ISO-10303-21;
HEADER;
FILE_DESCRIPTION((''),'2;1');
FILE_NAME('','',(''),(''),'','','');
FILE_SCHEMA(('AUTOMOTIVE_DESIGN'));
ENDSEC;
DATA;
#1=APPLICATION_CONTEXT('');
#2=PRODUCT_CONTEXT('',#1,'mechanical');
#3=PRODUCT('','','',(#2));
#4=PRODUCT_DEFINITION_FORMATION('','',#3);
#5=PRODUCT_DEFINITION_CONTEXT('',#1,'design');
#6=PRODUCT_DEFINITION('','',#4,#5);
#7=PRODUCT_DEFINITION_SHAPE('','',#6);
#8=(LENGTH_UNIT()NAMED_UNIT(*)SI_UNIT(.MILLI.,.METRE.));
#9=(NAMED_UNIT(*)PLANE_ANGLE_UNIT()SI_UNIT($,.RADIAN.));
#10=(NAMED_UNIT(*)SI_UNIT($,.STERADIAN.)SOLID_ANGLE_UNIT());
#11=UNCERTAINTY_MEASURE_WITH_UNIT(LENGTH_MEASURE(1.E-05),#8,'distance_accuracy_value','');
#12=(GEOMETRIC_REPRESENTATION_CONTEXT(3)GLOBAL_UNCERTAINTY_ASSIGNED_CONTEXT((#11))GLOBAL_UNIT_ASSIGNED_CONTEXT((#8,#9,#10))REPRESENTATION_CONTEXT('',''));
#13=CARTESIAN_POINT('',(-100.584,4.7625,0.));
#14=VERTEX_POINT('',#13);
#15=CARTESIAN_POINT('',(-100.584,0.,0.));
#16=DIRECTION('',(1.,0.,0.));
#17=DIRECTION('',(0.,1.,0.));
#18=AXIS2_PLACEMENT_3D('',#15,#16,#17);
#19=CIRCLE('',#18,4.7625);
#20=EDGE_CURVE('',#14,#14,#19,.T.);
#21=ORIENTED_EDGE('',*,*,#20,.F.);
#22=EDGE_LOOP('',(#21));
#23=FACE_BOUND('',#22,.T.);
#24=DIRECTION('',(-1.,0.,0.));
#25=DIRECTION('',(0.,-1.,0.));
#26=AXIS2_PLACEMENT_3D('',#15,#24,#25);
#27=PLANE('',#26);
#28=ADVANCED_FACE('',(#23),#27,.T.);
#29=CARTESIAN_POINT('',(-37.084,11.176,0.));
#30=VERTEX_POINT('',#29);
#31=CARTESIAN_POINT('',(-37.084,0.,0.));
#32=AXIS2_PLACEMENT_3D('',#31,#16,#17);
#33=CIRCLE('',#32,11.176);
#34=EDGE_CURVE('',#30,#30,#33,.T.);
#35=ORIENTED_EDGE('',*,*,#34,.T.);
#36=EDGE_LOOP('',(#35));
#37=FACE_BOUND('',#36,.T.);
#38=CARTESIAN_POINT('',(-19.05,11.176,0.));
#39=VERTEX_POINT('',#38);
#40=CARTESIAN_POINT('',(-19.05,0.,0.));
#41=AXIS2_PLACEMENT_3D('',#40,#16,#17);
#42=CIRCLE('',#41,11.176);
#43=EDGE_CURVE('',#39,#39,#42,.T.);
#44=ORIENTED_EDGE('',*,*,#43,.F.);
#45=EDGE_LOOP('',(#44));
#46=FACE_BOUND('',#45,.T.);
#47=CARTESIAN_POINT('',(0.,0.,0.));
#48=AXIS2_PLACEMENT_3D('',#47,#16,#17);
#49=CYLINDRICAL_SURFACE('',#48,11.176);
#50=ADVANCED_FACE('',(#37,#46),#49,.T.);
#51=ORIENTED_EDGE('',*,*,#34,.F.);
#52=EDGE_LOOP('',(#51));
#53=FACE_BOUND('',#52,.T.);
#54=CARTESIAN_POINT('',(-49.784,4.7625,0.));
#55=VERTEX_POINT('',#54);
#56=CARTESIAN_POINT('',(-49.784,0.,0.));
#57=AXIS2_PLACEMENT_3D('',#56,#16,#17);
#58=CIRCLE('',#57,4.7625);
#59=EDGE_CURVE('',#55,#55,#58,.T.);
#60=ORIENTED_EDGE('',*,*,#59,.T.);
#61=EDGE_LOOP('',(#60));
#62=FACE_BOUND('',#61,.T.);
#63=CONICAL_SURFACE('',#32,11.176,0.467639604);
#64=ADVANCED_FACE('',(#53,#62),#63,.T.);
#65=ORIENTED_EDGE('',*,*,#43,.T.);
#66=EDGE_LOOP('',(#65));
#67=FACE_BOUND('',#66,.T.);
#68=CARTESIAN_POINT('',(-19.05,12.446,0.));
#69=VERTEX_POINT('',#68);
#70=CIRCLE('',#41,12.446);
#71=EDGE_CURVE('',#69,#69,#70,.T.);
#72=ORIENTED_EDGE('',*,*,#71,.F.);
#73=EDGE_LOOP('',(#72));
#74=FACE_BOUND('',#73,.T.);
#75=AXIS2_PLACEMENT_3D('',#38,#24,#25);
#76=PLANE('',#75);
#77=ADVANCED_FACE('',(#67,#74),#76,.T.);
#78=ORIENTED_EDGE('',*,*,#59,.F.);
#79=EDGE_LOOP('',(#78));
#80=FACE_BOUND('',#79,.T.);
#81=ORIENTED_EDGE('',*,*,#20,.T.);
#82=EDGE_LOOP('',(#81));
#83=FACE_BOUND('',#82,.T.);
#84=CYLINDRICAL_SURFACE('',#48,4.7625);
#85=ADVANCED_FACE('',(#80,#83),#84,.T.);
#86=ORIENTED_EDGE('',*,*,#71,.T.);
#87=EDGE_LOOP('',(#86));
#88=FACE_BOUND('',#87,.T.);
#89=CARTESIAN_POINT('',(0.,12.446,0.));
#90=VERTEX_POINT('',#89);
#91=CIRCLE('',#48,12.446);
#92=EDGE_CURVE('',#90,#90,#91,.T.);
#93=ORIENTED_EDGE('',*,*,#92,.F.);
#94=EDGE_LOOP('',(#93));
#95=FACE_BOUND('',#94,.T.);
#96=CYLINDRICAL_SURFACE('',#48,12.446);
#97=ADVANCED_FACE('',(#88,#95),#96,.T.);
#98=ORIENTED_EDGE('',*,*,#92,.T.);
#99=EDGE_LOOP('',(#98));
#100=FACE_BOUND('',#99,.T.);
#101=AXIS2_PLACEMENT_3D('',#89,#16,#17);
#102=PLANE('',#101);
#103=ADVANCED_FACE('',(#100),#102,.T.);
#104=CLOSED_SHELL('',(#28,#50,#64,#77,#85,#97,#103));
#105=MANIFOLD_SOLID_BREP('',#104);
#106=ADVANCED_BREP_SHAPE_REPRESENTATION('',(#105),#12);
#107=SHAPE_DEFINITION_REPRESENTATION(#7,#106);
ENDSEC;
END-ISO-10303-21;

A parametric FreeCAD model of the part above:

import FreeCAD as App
import Part
import Sketcher
from FreeCAD import Vector
Q = App.Units.Quantity


def add_polygon(sketch, points):
    """Adds a closed chain of lines whose ends are joined by coincident constraints."""
    first, n = sketch.GeometryCount, len(points)
    for a, b in zip(points, points[1:] + points[:1]):
        sketch.addGeometry(Part.LineSegment(App.Vector(*a, 0), App.Vector(*b, 0)), False)
    for i in range(n):
        sketch.addConstraint(Sketcher.Constraint("Coincident", first + i, 2, first + (i + 1) % n, 1))

doc = App.newDocument("Part")
body = doc.addObject("PartDesign::Body", "Body")

sketch1 = body.newObject("Sketcher::SketchObject", "Sketch")
sketch1.AttachmentSupport = (doc.getObject("XY_Plane"), [""])
sketch1.MapMode = "FlatFace"
add_polygon(sketch1, [(-100.6, 0), (0, 0), (0, 12.4), (-19.1, 12.4), (-19.1, 11.2), (-37.1, 11.2), (-49.8, 4.8), (-100.6, 4.8)])
sketch1.addConstraint([
    Sketcher.Constraint("Horizontal", 0),
    Sketcher.Constraint("Vertical", 1),
    Sketcher.Constraint("Horizontal", 2),
    Sketcher.Constraint("Vertical", 3),
    Sketcher.Constraint("Horizontal", 4),
    Sketcher.Constraint("Horizontal", 6),
    Sketcher.Constraint("Vertical", 7),
    Sketcher.Constraint("Coincident", 0, 2, -1, 1),
    Sketcher.Constraint("DistanceX", 6, 2, 6, 1, Q("2 in")),
    Sketcher.Constraint("DistanceX", 0, 1, 0, 2, Q("3.96 in")),
    Sketcher.Constraint("DistanceX", 2, 2, 2, 1, Q("0.75 in")),
    Sketcher.Constraint("DistanceX", 4, 2, 4, 1, Q("0.71 in")),
    Sketcher.Constraint("DistanceY", 1, 1, 1, 2, Q("0.49 in")),
    Sketcher.Constraint("DistanceY", 3, 2, 3, 1, Q("0.05 in")),
    Sketcher.Constraint("DistanceY", 7, 2, 7, 1, Q("0.1875 in")),
])
revolution = body.newObject("PartDesign::Revolution", "Revolution")
revolution.Profile = sketch1
revolution.ReferenceAxis = (sketch1, ["H_Axis"])
revolution.Angle = 360

doc.recompute()
